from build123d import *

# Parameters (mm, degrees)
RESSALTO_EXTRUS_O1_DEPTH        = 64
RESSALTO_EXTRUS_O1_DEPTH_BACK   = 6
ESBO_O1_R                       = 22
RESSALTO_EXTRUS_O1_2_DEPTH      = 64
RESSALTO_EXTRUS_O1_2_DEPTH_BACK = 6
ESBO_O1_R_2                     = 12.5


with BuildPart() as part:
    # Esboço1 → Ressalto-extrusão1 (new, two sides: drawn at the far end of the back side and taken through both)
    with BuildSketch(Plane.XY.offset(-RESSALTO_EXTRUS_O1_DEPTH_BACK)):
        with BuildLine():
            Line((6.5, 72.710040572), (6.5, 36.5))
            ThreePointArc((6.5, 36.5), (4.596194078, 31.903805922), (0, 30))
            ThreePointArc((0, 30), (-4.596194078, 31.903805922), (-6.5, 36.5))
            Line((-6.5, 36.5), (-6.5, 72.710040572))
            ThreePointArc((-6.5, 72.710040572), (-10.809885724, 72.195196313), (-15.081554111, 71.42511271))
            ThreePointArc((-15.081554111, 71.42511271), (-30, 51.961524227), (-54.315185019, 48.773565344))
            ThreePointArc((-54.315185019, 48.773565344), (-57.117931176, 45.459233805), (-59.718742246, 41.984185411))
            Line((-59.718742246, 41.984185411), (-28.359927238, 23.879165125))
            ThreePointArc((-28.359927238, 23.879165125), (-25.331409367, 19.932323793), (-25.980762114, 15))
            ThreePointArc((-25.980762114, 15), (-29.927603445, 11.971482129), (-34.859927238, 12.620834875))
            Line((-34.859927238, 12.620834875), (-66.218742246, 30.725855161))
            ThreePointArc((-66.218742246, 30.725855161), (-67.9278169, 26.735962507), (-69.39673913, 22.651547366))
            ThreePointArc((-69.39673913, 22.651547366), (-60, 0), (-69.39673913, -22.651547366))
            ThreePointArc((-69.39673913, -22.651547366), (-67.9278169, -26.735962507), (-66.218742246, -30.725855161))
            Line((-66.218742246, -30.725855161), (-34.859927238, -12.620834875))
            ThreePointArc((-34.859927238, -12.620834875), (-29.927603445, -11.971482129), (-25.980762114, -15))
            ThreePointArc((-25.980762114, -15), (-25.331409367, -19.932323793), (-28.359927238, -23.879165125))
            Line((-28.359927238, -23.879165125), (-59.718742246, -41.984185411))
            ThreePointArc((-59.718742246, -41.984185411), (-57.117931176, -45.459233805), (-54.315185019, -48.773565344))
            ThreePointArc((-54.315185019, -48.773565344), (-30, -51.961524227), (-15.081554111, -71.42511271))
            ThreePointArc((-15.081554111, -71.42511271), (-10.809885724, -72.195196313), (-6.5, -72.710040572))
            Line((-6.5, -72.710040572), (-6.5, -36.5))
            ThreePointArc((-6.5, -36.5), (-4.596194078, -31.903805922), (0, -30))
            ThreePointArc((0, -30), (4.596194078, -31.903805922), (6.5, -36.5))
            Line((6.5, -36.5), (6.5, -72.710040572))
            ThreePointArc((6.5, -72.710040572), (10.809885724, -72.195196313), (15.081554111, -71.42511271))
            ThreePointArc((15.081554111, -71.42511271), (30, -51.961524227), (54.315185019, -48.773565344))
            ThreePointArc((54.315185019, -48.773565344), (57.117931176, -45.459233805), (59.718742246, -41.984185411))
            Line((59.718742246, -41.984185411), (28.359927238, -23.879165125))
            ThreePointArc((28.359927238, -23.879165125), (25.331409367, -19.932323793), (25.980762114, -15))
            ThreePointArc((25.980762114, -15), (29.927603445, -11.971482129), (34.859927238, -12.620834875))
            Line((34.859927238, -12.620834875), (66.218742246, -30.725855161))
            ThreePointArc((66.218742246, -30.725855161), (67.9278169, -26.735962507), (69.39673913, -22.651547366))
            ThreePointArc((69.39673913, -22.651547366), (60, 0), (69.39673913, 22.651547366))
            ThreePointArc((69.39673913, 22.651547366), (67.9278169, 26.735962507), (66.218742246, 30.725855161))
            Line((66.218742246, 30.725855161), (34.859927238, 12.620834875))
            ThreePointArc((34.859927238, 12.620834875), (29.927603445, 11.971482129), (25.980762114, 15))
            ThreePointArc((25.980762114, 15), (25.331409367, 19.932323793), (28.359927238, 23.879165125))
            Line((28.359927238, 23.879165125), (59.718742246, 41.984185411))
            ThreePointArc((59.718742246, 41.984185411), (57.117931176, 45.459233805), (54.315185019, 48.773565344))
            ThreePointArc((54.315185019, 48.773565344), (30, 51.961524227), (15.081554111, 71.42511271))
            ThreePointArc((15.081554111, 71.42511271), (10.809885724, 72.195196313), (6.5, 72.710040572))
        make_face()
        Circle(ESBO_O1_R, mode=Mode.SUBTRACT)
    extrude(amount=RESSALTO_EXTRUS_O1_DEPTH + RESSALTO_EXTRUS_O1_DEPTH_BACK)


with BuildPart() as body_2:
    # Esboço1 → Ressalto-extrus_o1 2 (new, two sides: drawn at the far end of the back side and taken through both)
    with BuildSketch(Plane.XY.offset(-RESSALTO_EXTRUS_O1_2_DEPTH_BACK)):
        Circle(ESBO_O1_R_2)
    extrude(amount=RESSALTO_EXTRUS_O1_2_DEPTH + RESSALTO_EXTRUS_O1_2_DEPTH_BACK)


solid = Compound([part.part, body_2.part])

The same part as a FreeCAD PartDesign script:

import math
import FreeCAD as App
import Part
import Sketcher
from FreeCAD import Vector
Q = App.Units.Quantity

doc = App.newDocument("Part")
body = doc.addObject("PartDesign::Body", "Body")

sketch1 = body.newObject("Sketcher::SketchObject", "Sketch")
sketch1.AttachmentSupport = (doc.getObject("XY_Plane"), [""])
sketch1.MapMode = "FlatFace"
sketch1.addGeometry(Part.LineSegment(Vector(6, 73, 0), Vector(6, 36, 0)), False)
sketch1.addGeometry(Part.ArcOfCircle(Part.Circle(Vector(0, 36, 0), Vector(0, 0, 1), 6), math.radians(-90), math.radians(0)), False)
sketch1.addGeometry(Part.ArcOfCircle(Part.Circle(Vector(0, 36, 0), Vector(0, 0, 1), 6), math.radians(180), math.radians(270)), False)
sketch1.addGeometry(Part.LineSegment(Vector(-6, 36, 0), Vector(-6, 73, 0)), False)
sketch1.addGeometry(Part.ArcOfCircle(Part.Circle(Vector(0, 0, 0), Vector(0, 0, 1), 73), math.radians(95.11), math.radians(101.92)), False)
sketch1.addGeometry(Part.ArcOfCircle(Part.Circle(Vector(-46, 80, 0), Vector(0, 0, 1), 32), math.radians(-105), math.radians(-15)), False)
sketch1.addGeometry(Part.ArcOfCircle(Part.Circle(Vector(0, 0, 0), Vector(0, 0, 1), 73), math.radians(138.08), math.radians(144.89)), False)
sketch1.addGeometry(Part.LineSegment(Vector(-60, 42, 0), Vector(-28, 24, 0)), False)
sketch1.addGeometry(Part.ArcOfCircle(Part.Circle(Vector(-32, 18, 0), Vector(0, 0, 1), 6), math.radians(-30), math.radians(60)), False)
sketch1.addGeometry(Part.ArcOfCircle(Part.Circle(Vector(-32, 18, 0), Vector(0, 0, 1), 6), math.radians(-120), math.radians(-30)), False)
sketch1.addGeometry(Part.LineSegment(Vector(-35, 13, 0), Vector(-66, 31, 0)), False)
sketch1.addGeometry(Part.ArcOfCircle(Part.Circle(Vector(0, 0, 0), Vector(0, 0, 1), 73), math.radians(155.11), math.radians(161.92)), False)
sketch1.addGeometry(Part.ArcOfCircle(Part.Circle(Vector(-92, 0, 0), Vector(0, 0, 1), 32), math.radians(-45), math.radians(45)), False)
sketch1.addGeometry(Part.ArcOfCircle(Part.Circle(Vector(0, 0, 0), Vector(0, 0, 1), 73), math.radians(-161.92), math.radians(-155.11)), False)
sketch1.addGeometry(Part.LineSegment(Vector(-66, -31, 0), Vector(-35, -13, 0)), False)
sketch1.addGeometry(Part.ArcOfCircle(Part.Circle(Vector(-32, -18, 0), Vector(0, 0, 1), 6), math.radians(30), math.radians(120)), False)
sketch1.addGeometry(Part.ArcOfCircle(Part.Circle(Vector(-32, -18, 0), Vector(0, 0, 1), 6), math.radians(-60), math.radians(30)), False)
sketch1.addGeometry(Part.LineSegment(Vector(-28, -24, 0), Vector(-60, -42, 0)), False)
sketch1.addGeometry(Part.ArcOfCircle(Part.Circle(Vector(0, 0, 0), Vector(0, 0, 1), 73), math.radians(-144.89), math.radians(-138.08)), False)
sketch1.addGeometry(Part.ArcOfCircle(Part.Circle(Vector(-46, -80, 0), Vector(0, 0, 1), 32), math.radians(15), math.radians(105)), False)
sketch1.addGeometry(Part.ArcOfCircle(Part.Circle(Vector(0, 0, 0), Vector(0, 0, 1), 73), math.radians(-101.92), math.radians(-95.11)), False)
sketch1.addGeometry(Part.LineSegment(Vector(-6, -73, 0), Vector(-6, -36, 0)), False)
sketch1.addGeometry(Part.ArcOfCircle(Part.Circle(Vector(0, -36, 0), Vector(0, 0, 1), 6), math.radians(90), math.radians(180)), False)
sketch1.addGeometry(Part.ArcOfCircle(Part.Circle(Vector(0, -36, 0), Vector(0, 0, 1), 6), math.radians(0), math.radians(90)), False)
sketch1.addGeometry(Part.LineSegment(Vector(6, -36, 0), Vector(6, -73, 0)), False)
sketch1.addGeometry(Part.ArcOfCircle(Part.Circle(Vector(0, 0, 0), Vector(0, 0, 1), 73), math.radians(-84.89), math.radians(-78.08)), False)
sketch1.addGeometry(Part.ArcOfCircle(Part.Circle(Vector(46, -80, 0), Vector(0, 0, 1), 32), math.radians(75), math.radians(165)), False)
sketch1.addGeometry(Part.ArcOfCircle(Part.Circle(Vector(0, 0, 0), Vector(0, 0, 1), 73), math.radians(-41.92), math.radians(-35.11)), False)
sketch1.addGeometry(Part.LineSegment(Vector(60, -42, 0), Vector(28, -24, 0)), False)
sketch1.addGeometry(Part.ArcOfCircle(Part.Circle(Vector(32, -18, 0), Vector(0, 0, 1), 6), math.radians(150), math.radians(240)), False)
sketch1.addGeometry(Part.ArcOfCircle(Part.Circle(Vector(32, -18, 0), Vector(0, 0, 1), 6), math.radians(60), math.radians(150)), False)
sketch1.addGeometry(Part.LineSegment(Vector(35, -13, 0), Vector(66, -31, 0)), False)
sketch1.addGeometry(Part.ArcOfCircle(Part.Circle(Vector(0, 0, 0), Vector(0, 0, 1), 73), math.radians(-24.89), math.radians(-18.08)), False)
sketch1.addGeometry(Part.ArcOfCircle(Part.Circle(Vector(92, 0, 0), Vector(0, 0, 1), 32), math.radians(135), math.radians(225)), False)
sketch1.addGeometry(Part.ArcOfCircle(Part.Circle(Vector(0, 0, 0), Vector(0, 0, 1), 73), math.radians(18.08), math.radians(24.89)), False)
sketch1.addGeometry(Part.LineSegment(Vector(66, 31, 0), Vector(35, 13, 0)), False)
sketch1.addGeometry(Part.ArcOfCircle(Part.Circle(Vector(32, 18, 0), Vector(0, 0, 1), 6), math.radians(-150), math.radians(-60)), False)
sketch1.addGeometry(Part.ArcOfCircle(Part.Circle(Vector(32, 18, 0), Vector(0, 0, 1), 6), math.radians(120), math.radians(210)), False)
sketch1.addGeometry(Part.LineSegment(Vector(28, 24, 0), Vector(60, 42, 0)), False)
sketch1.addGeometry(Part.ArcOfCircle(Part.Circle(Vector(0, 0, 0), Vector(0, 0, 1), 73), math.radians(35.11), math.radians(41.92)), False)
sketch1.addGeometry(Part.ArcOfCircle(Part.Circle(Vector(46, 80, 0), Vector(0, 0, 1), 32), math.radians(-165), math.radians(-75)), False)
sketch1.addGeometry(Part.ArcOfCircle(Part.Circle(Vector(0, 0, 0), Vector(0, 0, 1), 73), math.radians(78.08), math.radians(84.89)), False)
sketch1.addGeometry(Part.Circle(Vector(0, 0, 0), Vector(0, 0, 1), 22), False)
sketch1.addConstraint(Sketcher.Constraint("Tangent", 0, 2, 1, 2))
sketch1.addConstraint(Sketcher.Constraint("Tangent", 1, 1, 2, 2))
sketch1.addConstraint(Sketcher.Constraint("Tangent", 2, 1, 3, 1))
sketch1.addConstraint(Sketcher.Constraint("Coincident", 3, 2, 4, 1))
sketch1.addConstraint(Sketcher.Constraint("Coincident", 4, 2, 5, 2))
sketch1.addConstraint(Sketcher.Constraint("Coincident", 5, 1, 6, 1))
sketch1.addConstraint(Sketcher.Constraint("Coincident", 6, 2, 7, 1))
sketch1.addConstraint(Sketcher.Constraint("Tangent", 7, 2, 8, 2))
sketch1.addConstraint(Sketcher.Constraint("Tangent", 8, 1, 9, 2))
sketch1.addConstraint(Sketcher.Constraint("Tangent", 9, 1, 10, 1))
sketch1.addConstraint(Sketcher.Constraint("Coincident", 10, 2, 11, 1))
sketch1.addConstraint(Sketcher.Constraint("Coincident", 11, 2, 12, 2))
sketch1.addConstraint(Sketcher.Constraint("Coincident", 12, 1, 13, 1))
sketch1.addConstraint(Sketcher.Constraint("Coincident", 13, 2, 14, 1))
sketch1.addConstraint(Sketcher.Constraint("Tangent", 14, 2, 15, 2))
sketch1.addConstraint(Sketcher.Constraint("Tangent", 15, 1, 16, 2))
sketch1.addConstraint(Sketcher.Constraint("Tangent", 16, 1, 17, 1))
sketch1.addConstraint(Sketcher.Constraint("Coincident", 17, 2, 18, 1))
sketch1.addConstraint(Sketcher.Constraint("Coincident", 18, 2, 19, 2))
sketch1.addConstraint(Sketcher.Constraint("Coincident", 19, 1, 20, 1))
sketch1.addConstraint(Sketcher.Constraint("Coincident", 20, 2, 21, 1))
sketch1.addConstraint(Sketcher.Constraint("Tangent", 21, 2, 22, 2))
sketch1.addConstraint(Sketcher.Constraint("Tangent", 22, 1, 23, 2))
sketch1.addConstraint(Sketcher.Constraint("Tangent", 23, 1, 24, 1))
sketch1.addConstraint(Sketcher.Constraint("Coincident", 24, 2, 25, 1))
sketch1.addConstraint(Sketcher.Constraint("Coincident", 25, 2, 26, 2))
sketch1.addConstraint(Sketcher.Constraint("Coincident", 26, 1, 27, 1))
sketch1.addConstraint(Sketcher.Constraint("Coincident", 27, 2, 28, 1))
sketch1.addConstraint(Sketcher.Constraint("Tangent", 28, 2, 29, 2))
sketch1.addConstraint(Sketcher.Constraint("Tangent", 29, 1, 30, 2))
sketch1.addConstraint(Sketcher.Constraint("Tangent", 30, 1, 31, 1))
sketch1.addConstraint(Sketcher.Constraint("Coincident", 31, 2, 32, 1))
sketch1.addConstraint(Sketcher.Constraint("Coincident", 32, 2, 33, 2))
sketch1.addConstraint(Sketcher.Constraint("Coincident", 33, 1, 34, 1))
sketch1.addConstraint(Sketcher.Constraint("Coincident", 34, 2, 35, 1))
sketch1.addConstraint(Sketcher.Constraint("Tangent", 35, 2, 36, 2))
sketch1.addConstraint(Sketcher.Constraint("Tangent", 36, 1, 37, 2))
sketch1.addConstraint(Sketcher.Constraint("Tangent", 37, 1, 38, 1))
sketch1.addConstraint(Sketcher.Constraint("Coincident", 38, 2, 39, 1))
sketch1.addConstraint(Sketcher.Constraint("Coincident", 39, 2, 40, 2))
sketch1.addConstraint(Sketcher.Constraint("Coincident", 40, 1, 41, 1))
sketch1.addConstraint(Sketcher.Constraint("Coincident", 41, 2, 0, 1))
sketch1.addConstraint(Sketcher.Constraint("Vertical", 0))
sketch1.addConstraint(Sketcher.Constraint("Vertical", 3))
sketch1.addConstraint(Sketcher.Constraint("Vertical", 21))
sketch1.addConstraint(Sketcher.Constraint("Vertical", 24))
sketch1.addConstraint(Sketcher.Constraint("Coincident", 4, 3, -1, 1))
sketch1.addConstraint(Sketcher.Constraint("Coincident", 6, 3, -1, 1))
sketch1.addConstraint(Sketcher.Constraint("Coincident", 11, 3, -1, 1))
sketch1.addConstraint(Sketcher.Constraint("Coincident", 13, 3, -1, 1))
sketch1.addConstraint(Sketcher.Constraint("Coincident", 18, 3, -1, 1))
sketch1.addConstraint(Sketcher.Constraint("Coincident", 20, 3, -1, 1))
sketch1.addConstraint(Sketcher.Constraint("Coincident", 25, 3, -1, 1))
sketch1.addConstraint(Sketcher.Constraint("Coincident", 27, 3, -1, 1))
sketch1.addConstraint(Sketcher.Constraint("Coincident", 32, 3, -1, 1))
sketch1.addConstraint(Sketcher.Constraint("Coincident", 34, 3, -1, 1))
sketch1.addConstraint(Sketcher.Constraint("Coincident", 39, 3, -1, 1))
sketch1.addConstraint(Sketcher.Constraint("Coincident", 41, 3, -1, 1))
sketch1.addConstraint(Sketcher.Constraint("Coincident", 42, 3, -1, 1))
sketch1.addConstraint(Sketcher.Constraint("Equal", 1, 2))
sketch1.addConstraint(Sketcher.Constraint("Equal", 4, 6))
sketch1.addConstraint(Sketcher.Constraint("Equal", 2, 8))
sketch1.addConstraint(Sketcher.Constraint("Equal", 8, 9))
sketch1.addConstraint(Sketcher.Constraint("Equal", 6, 11))
sketch1.addConstraint(Sketcher.Constraint("Equal", 5, 12))
sketch1.addConstraint(Sketcher.Constraint("Equal", 11, 13))
sketch1.addConstraint(Sketcher.Constraint("Equal", 9, 15))
sketch1.addConstraint(Sketcher.Constraint("Equal", 15, 16))
sketch1.addConstraint(Sketcher.Constraint("Equal", 13, 18))
sketch1.addConstraint(Sketcher.Constraint("Equal", 12, 19))
sketch1.addConstraint(Sketcher.Constraint("Equal", 18, 20))
sketch1.addConstraint(Sketcher.Constraint("Equal", 16, 22))
sketch1.addConstraint(Sketcher.Constraint("Equal", 22, 23))
sketch1.addConstraint(Sketcher.Constraint("Equal", 20, 25))
sketch1.addConstraint(Sketcher.Constraint("Equal", 19, 26))
sketch1.addConstraint(Sketcher.Constraint("Equal", 25, 27))
sketch1.addConstraint(Sketcher.Constraint("Equal", 23, 29))
sketch1.addConstraint(Sketcher.Constraint("Equal", 29, 30))
sketch1.addConstraint(Sketcher.Constraint("Equal", 27, 32))
sketch1.addConstraint(Sketcher.Constraint("Equal", 26, 33))
sketch1.addConstraint(Sketcher.Constraint("Equal", 32, 34))
sketch1.addConstraint(Sketcher.Constraint("Equal", 30, 36))
sketch1.addConstraint(Sketcher.Constraint("Equal", 36, 37))
sketch1.addConstraint(Sketcher.Constraint("Equal", 34, 39))
sketch1.addConstraint(Sketcher.Constraint("Equal", 33, 40))
sketch1.addConstraint(Sketcher.Constraint("Equal", 39, 41))
sketch1.addConstraint(Sketcher.Constraint("Symmetric", 1, 3, 22, 3, -1, 1))
sketch1.addConstraint(Sketcher.Constraint("Symmetric", 5, 3, 26, 3, -1, 1))
sketch1.addConstraint(Sketcher.Constraint("Symmetric", 8, 3, 29, 3, -1, 1))
sketch1.addConstraint(Sketcher.Constraint("Symmetric", 12, 3, 33, 3, -1, 1))
sketch1.addConstraint(Sketcher.Constraint("Symmetric", 15, 3, 36, 3, -1, 1))
sketch1.addConstraint(Sketcher.Constraint("Symmetric", 19, 3, 40, 3, -1, 1))
sketch1.addConstraint(Sketcher.Constraint("Symmetric", 19, 3, 26, 3, -2))
sketch1.addConstraint(Sketcher.Constraint("Symmetric", 15, 3, 29, 3, -2))
sketch1.addConstraint(Sketcher.Constraint("PointOnObject", 1, 3, -2))
sketch1.addConstraint(Sketcher.Constraint("PointOnObject", 12, 3, -1))
sketch1.addConstraint(Sketcher.Constraint("PointOnObject", 1, 1, -2))
sketch1.addConstraint(Sketcher.Constraint("PointOnObject", 22, 1, -2))
sketch1.addConstraint(Sketcher.Constraint("Parallel", 7, 10))
sketch1.addConstraint(Sketcher.Constraint("Parallel", 14, 17))
sketch1.addConstraint(Sketcher.Constraint("Parallel", 10, 28))
sketch1.addConstraint(Sketcher.Constraint("Parallel", 28, 31))
sketch1.addConstraint(Sketcher.Constraint("Parallel", 17, 35))
sketch1.addConstraint(Sketcher.Constraint("Parallel", 35, 38))
sketch1.addConstraint(Sketcher.Constraint("Horizontal", 17, 2, 27, 2))
sketch1.addConstraint(Sketcher.Constraint("Horizontal", 15, 1, 29, 1))
sketch1.addConstraint(Sketcher.Constraint("Horizontal", 8, 1, 36, 1))
sketch1.addConstraint(Sketcher.Constraint("Vertical", 8, 1, 15, 1))
sketch1.addConstraint(Sketcher.Constraint("Equal", 7, 10))
sketch1.addConstraint(Sketcher.Constraint("Diameter", 42, 44.0))
sketch1.addConstraint(Sketcher.Constraint("Radius", 4, 73.0))
sketch1.addConstraint(Sketcher.Constraint("Radius", 5, 32.0))
sketch1.addConstraint(Sketcher.Constraint("Radius", 1, 6.5))
sketch1.addConstraint(Sketcher.Constraint("Angle", 7, Q("-30 deg")))
sketch1.addConstraint(Sketcher.Constraint("DistanceX", 5, 3, -1, 1, 46.0))
sketch1.addConstraint(Sketcher.Constraint("DistanceX", 12, 3, -1, 1, 92.0))
sketch1.addConstraint(Sketcher.Constraint("DistanceY", -1, 1, 1, 1, 30.0))
sketch1.addConstraint(Sketcher.Constraint("DistanceY", -1, 1, 8, 1, 15.0))
sketch1.addConstraint(Sketcher.Constraint("DistanceY", -1, 1, 8, 3, 18.25))
sketch1.addConstraint(Sketcher.Constraint("DistanceY", -1, 1, 5, 3, 79.674337))
pad1 = body.newObject("PartDesign::Pad", "Pad")
pad1.Profile = sketch1
pad1.Type = "TwoLengths"
pad1.Length = 64
pad1.Length2 = 6
body2 = doc.addObject("PartDesign::Body", "Body001")

sketch2 = body2.newObject("Sketcher::SketchObject", "Sketch001")
sketch2.AttachmentSupport = (doc.getObject("XY_Plane001"), [""])
sketch2.MapMode = "FlatFace"
sketch2.addGeometry(Part.Circle(Vector(0, 0, 0), Vector(0, 0, 1), 12), False)
sketch2.addConstraint(Sketcher.Constraint("Coincident", 0, 3, -1, 1))
sketch2.addConstraint(Sketcher.Constraint("Diameter", 0, 25.0))
pad2 = body2.newObject("PartDesign::Pad", "Pad001")
pad2.Profile = sketch2
pad2.Type = "TwoLengths"
pad2.Length = 64
pad2.Length2 = 6

doc.recompute()
